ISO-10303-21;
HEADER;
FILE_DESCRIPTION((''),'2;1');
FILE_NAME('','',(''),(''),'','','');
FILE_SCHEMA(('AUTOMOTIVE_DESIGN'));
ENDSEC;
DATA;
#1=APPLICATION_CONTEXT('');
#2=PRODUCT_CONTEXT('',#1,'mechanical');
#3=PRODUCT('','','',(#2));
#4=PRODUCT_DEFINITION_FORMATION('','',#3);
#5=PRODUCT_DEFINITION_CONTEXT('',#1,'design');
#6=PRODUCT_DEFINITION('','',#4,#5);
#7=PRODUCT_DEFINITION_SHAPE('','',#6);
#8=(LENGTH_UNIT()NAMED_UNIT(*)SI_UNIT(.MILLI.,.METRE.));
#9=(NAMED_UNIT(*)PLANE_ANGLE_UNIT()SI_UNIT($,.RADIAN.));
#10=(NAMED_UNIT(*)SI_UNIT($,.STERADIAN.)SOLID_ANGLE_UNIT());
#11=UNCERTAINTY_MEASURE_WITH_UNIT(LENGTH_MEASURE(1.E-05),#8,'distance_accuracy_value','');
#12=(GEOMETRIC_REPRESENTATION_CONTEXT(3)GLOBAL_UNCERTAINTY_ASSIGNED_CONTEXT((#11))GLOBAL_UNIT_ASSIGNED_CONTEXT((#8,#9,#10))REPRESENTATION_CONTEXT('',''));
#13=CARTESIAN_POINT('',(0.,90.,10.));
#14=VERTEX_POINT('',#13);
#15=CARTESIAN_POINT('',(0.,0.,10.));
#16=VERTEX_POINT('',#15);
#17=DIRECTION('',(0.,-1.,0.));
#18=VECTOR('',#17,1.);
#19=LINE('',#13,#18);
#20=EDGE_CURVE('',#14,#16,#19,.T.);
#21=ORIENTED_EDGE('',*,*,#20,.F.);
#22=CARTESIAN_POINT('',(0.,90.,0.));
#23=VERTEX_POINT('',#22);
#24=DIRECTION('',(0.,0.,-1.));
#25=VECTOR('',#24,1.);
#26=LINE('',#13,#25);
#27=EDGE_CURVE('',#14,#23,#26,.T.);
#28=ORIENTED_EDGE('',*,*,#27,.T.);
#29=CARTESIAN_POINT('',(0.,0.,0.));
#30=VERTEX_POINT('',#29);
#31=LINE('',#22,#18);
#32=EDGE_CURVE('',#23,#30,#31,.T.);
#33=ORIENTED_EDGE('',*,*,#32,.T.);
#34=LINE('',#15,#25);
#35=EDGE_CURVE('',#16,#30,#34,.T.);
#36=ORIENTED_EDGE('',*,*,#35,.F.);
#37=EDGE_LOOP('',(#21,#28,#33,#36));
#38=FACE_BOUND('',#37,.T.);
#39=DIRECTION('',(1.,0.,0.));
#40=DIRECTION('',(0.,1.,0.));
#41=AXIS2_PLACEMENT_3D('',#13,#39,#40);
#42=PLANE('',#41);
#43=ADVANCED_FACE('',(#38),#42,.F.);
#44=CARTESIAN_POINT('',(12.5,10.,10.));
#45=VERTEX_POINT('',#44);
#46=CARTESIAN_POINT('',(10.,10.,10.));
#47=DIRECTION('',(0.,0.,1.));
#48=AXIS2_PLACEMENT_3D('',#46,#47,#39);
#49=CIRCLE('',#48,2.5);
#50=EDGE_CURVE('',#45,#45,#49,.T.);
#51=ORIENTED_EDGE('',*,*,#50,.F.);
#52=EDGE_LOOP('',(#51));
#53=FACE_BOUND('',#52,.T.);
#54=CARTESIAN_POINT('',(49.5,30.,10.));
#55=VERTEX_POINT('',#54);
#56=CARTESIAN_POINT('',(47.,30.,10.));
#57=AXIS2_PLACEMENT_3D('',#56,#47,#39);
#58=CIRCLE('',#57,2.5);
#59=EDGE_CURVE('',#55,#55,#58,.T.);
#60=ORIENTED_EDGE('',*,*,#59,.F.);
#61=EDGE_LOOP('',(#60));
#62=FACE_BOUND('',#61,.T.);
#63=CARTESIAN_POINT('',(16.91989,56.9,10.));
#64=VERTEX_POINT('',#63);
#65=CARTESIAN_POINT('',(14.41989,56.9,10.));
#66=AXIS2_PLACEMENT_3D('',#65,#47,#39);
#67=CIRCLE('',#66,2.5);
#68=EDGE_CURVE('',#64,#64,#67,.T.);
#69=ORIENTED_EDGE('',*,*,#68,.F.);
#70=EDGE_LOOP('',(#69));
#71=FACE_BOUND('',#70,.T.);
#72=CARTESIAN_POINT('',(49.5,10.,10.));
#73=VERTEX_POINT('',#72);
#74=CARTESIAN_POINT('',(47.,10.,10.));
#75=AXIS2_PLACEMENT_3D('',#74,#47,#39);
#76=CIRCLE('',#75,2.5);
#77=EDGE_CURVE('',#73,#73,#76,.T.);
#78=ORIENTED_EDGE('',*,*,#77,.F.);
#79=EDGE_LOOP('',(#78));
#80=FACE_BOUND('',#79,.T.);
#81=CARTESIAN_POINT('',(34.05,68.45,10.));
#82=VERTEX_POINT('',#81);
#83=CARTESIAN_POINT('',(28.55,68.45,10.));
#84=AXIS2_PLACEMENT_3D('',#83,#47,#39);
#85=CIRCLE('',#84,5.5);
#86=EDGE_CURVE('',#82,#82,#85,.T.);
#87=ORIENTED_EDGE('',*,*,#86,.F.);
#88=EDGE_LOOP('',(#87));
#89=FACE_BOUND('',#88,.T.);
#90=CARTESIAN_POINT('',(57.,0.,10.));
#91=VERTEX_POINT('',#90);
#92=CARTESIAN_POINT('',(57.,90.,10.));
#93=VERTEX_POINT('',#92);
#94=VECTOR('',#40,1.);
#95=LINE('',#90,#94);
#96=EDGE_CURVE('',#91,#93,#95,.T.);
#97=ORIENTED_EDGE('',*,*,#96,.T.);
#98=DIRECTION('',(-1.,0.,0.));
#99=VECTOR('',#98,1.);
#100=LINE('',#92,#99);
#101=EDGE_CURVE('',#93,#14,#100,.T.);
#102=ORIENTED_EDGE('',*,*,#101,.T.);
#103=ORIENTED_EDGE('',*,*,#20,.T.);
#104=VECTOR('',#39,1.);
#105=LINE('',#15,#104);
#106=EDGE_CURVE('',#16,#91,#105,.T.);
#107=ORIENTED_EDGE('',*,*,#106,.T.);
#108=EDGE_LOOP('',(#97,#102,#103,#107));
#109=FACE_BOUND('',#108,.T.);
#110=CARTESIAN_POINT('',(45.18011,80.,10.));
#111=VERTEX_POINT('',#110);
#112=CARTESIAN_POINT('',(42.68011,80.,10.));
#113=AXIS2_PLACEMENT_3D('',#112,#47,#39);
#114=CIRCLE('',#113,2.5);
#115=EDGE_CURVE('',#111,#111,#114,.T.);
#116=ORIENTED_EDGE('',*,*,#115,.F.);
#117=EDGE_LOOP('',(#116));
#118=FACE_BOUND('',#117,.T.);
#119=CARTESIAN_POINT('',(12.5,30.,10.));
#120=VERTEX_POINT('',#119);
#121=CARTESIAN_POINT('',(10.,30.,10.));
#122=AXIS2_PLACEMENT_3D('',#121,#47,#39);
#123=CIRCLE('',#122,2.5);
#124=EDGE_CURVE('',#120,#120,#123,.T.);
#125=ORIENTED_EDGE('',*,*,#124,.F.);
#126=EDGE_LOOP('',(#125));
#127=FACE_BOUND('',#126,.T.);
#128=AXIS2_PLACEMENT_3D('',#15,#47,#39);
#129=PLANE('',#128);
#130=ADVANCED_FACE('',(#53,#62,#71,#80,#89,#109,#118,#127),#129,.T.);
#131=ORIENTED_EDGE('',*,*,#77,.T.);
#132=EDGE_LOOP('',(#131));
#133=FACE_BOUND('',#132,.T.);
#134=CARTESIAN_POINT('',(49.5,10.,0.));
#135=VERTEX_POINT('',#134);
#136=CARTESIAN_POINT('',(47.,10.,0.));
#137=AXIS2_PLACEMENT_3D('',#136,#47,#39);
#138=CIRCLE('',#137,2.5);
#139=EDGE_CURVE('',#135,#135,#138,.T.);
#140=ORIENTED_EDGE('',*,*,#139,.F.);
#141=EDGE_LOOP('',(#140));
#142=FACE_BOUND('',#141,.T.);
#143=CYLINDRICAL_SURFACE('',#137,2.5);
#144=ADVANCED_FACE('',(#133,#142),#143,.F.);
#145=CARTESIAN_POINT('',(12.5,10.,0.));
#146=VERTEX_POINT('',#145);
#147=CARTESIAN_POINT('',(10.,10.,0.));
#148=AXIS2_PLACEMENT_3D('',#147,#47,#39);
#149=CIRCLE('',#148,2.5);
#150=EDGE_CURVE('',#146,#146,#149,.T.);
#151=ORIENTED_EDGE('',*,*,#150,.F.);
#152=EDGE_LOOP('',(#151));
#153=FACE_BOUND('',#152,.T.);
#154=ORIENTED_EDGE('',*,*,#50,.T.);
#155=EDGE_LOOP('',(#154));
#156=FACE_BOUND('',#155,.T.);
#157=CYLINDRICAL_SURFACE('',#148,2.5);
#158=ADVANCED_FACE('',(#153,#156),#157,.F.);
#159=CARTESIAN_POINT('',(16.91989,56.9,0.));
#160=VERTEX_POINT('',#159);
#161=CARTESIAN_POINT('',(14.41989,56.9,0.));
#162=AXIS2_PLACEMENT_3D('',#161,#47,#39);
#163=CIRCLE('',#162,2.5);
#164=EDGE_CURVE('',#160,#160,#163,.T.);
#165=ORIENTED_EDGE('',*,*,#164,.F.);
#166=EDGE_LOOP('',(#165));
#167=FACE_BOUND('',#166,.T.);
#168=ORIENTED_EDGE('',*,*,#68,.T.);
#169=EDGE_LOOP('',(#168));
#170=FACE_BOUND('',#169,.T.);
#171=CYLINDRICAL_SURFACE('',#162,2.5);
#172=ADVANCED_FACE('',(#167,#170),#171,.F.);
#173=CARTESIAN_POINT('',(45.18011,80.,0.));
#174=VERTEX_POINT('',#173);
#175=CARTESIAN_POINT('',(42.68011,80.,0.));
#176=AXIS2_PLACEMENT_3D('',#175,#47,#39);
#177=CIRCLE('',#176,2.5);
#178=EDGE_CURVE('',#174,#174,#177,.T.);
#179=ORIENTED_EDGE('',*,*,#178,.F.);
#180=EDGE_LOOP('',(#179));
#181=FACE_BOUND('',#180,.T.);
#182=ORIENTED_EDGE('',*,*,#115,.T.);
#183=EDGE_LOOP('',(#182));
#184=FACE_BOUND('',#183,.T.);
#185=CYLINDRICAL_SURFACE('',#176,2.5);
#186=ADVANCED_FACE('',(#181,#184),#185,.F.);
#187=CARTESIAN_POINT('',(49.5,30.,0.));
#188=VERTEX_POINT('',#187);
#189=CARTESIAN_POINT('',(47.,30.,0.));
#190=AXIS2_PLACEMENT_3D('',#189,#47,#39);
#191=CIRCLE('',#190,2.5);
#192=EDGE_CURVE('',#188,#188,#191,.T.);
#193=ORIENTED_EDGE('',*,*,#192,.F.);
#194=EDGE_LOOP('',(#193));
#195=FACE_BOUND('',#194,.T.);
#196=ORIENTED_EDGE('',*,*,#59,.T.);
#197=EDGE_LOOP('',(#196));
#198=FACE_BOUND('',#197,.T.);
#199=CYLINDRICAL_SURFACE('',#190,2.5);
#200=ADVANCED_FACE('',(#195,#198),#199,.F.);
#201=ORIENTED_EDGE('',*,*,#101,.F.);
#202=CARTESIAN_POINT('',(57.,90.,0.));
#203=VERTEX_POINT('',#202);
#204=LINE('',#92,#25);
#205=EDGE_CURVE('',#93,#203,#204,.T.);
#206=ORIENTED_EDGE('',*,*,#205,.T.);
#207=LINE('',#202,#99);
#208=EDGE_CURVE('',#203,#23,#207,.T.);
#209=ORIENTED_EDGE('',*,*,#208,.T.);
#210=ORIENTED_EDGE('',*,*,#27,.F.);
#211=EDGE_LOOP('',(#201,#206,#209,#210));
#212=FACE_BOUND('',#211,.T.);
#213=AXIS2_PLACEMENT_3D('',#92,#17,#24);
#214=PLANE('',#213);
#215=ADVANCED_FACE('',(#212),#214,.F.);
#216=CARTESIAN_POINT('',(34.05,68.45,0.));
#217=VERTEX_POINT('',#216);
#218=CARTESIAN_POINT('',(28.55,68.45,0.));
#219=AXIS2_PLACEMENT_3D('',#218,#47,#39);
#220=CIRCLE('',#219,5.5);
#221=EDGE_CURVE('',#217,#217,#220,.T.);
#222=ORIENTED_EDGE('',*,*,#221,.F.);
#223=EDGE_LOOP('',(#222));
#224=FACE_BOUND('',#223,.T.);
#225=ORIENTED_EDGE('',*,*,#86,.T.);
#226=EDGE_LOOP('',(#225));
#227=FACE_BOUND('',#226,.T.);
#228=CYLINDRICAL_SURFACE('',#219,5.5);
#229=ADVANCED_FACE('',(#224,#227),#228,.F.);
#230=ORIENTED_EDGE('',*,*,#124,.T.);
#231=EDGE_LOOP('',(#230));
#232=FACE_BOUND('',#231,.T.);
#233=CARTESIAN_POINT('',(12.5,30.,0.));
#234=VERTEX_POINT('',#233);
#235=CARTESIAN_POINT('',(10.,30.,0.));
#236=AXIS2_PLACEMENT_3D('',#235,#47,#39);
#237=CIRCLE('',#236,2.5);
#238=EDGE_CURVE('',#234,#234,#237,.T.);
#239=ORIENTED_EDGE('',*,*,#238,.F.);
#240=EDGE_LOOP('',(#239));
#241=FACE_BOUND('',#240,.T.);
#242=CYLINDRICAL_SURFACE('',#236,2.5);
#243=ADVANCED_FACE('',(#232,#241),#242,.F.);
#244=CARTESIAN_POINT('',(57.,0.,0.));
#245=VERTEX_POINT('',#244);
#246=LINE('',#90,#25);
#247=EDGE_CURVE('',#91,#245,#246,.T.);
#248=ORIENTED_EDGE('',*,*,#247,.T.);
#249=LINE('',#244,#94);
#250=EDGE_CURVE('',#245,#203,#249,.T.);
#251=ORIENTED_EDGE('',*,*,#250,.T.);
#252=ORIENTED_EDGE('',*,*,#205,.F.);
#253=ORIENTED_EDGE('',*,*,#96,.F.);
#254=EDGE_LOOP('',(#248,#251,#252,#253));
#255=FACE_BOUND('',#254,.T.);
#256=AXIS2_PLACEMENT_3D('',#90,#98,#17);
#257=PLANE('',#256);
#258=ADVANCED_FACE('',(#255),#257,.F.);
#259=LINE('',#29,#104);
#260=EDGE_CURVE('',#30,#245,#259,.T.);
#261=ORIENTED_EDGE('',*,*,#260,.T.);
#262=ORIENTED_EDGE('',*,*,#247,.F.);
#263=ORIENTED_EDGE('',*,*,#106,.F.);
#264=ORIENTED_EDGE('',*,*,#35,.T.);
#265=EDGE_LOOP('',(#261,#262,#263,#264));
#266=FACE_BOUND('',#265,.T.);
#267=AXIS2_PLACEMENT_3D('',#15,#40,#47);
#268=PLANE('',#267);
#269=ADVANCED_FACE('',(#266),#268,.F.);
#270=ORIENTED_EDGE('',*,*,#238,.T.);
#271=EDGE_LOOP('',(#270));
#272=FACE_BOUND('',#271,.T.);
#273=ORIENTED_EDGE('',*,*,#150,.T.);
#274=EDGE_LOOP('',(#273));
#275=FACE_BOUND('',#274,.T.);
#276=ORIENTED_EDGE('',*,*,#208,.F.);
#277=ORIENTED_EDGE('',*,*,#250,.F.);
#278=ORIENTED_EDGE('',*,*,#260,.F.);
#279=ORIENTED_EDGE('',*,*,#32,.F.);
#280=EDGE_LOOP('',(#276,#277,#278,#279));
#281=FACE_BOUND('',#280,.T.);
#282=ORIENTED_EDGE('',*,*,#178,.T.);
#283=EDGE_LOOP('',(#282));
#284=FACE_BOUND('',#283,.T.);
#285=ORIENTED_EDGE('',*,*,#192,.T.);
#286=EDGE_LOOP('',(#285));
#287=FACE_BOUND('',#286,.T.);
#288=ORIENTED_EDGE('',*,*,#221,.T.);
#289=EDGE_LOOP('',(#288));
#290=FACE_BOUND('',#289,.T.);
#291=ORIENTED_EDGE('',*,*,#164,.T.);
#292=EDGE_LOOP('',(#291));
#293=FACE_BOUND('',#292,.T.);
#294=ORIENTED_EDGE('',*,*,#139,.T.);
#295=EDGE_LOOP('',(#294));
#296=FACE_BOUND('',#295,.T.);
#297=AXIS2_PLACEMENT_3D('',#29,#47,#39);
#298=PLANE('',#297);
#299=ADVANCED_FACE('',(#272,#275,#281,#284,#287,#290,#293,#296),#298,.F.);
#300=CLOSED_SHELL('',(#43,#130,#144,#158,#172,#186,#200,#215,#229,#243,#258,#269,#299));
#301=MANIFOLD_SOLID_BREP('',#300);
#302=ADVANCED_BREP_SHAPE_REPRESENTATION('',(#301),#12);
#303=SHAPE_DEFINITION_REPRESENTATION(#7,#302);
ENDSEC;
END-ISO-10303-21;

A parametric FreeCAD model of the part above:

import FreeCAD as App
import Part
import Sketcher

V = App.Vector

doc = App.newDocument("Part")
params = doc.addObject("Spreadsheet::Sheet", "Params")
for row, (alias, value) in enumerate([
    ("sketch1_width", "57 mm"),
    ("sketch1_height", "90 mm"),
    ("pad1_length", "10 mm"),
    ("sketch2_diameter", "5 mm"),
    ("sketch2_diameter2", "11 mm"),
    ("pocket1_length", "10 mm"),
], start=1):
    params.set(f"A{row}", alias)
    params.set(f"B{row}", "=" + value)
    params.setAlias(f"B{row}", alias)

body = doc.addObject("PartDesign::Body", "Body")

# Sketch on XY plane
sketch1 = doc.addObject("Sketcher::SketchObject", "Sketch")
body.addObject(sketch1)
sketch1.AttachmentSupport = (doc.XY_Plane, [""])
sketch1.MapMode = "FlatFace"
sketch1.addGeometry([
    Part.LineSegment(V(0, 90, 0), V(0, 0, 0)),
    Part.LineSegment(V(0, 0, 0), V(57, 0, 0)),
    Part.LineSegment(V(57, 0, 0), V(57, 90, 0)),
    Part.LineSegment(V(57, 90, 0), V(0, 90, 0)),
], False)
sketch1.addConstraint([
    Sketcher.Constraint("Coincident", 0, 2, 1, 1),
    Sketcher.Constraint("Coincident", 1, 2, 2, 1),
    Sketcher.Constraint("Coincident", 2, 2, 3, 1),
    Sketcher.Constraint("Coincident", 3, 2, 0, 1),
    Sketcher.Constraint("Vertical", 0),
    Sketcher.Constraint("Horizontal", 1),
    Sketcher.Constraint("Vertical", 2),
    Sketcher.Constraint("Horizontal", 3),
    Sketcher.Constraint("Coincident", 0, 2, -1, 1),
    Sketcher.Constraint("DistanceX", 1, 1, 1, 2, 57.0),
    Sketcher.Constraint("DistanceY", 0, 2, 0, 1, 90.0),
])
sketch1.setExpression("Constraints[9]", "Params.sketch1_width")
sketch1.setExpression("Constraints[10]", "Params.sketch1_height")
pad1 = doc.addObject("PartDesign::Pad", "Pad")
body.addObject(pad1)
pad1.Profile = sketch1
pad1.setExpression("Length", "Params.pad1_length")

# Sketch on XY plane
sketch2 = doc.addObject("Sketcher::SketchObject", "Sketch001")
body.addObject(sketch2)
sketch2.AttachmentSupport = (doc.XY_Plane, [""])
sketch2.MapMode = "FlatFace"
sketch2.AttachmentOffset = App.Placement(V(0, 0, 10), App.Rotation())
sketch2.addGeometry([
    Part.Circle(V(47, 30, 0), V(0, 0, 1), 2.5),  # 0
    Part.Circle(V(47, 10, 0), V(0, 0, 1), 2.5),  # 1
    Part.Circle(V(10, 10, 0), V(0, 0, 1), 2.5),  # 2
    Part.Circle(V(10, 30, 0), V(0, 0, 1), 2.5),  # 3
    Part.Circle(V(28.6, 68.5, 0), V(0, 0, 1), 5.5),  # 4
    Part.Circle(V(14.4, 56.9, 0), V(0, 0, 1), 2.5),  # 5
    Part.Circle(V(42.7, 80, 0), V(0, 0, 1), 2.5),  # 6
], False)
sketch2.addConstraint([
    Sketcher.Constraint("Equal", 0, 1),
    Sketcher.Constraint("Equal", 1, 2),
    Sketcher.Constraint("Equal", 2, 3),
    Sketcher.Constraint("Equal", 3, 5),
    Sketcher.Constraint("Equal", 5, 6),
    Sketcher.Constraint("Horizontal", 1, 3, 2, 3),
    Sketcher.Constraint("Horizontal", 0, 3, 3, 3),
    Sketcher.Constraint("Vertical", 0, 3, 1, 3),
    Sketcher.Constraint("Vertical", 2, 3, 3, 3),
    Sketcher.Constraint("Diameter", 0, 5.0),
    Sketcher.Constraint("Diameter", 4, 11.0),
    Sketcher.Constraint("DistanceX", -1, 1, 0, 3, 47.0),
    Sketcher.Constraint("DistanceY", -1, 1, 0, 3, 30.0),
    Sketcher.Constraint("DistanceY", -1, 1, 1, 3, 10.0),
    Sketcher.Constraint("DistanceX", -1, 1, 2, 3, 10.0),
    Sketcher.Constraint("DistanceY", -1, 1, 6, 3, 80.0),
    Sketcher.Constraint("DistanceY", -1, 1, 5, 3, 56.9),
    Sketcher.Constraint("DistanceX", -1, 1, 4, 3, 28.55),
    Sketcher.Constraint("DistanceY", -1, 1, 4, 3, 68.45),
    Sketcher.Constraint("DistanceX", -1, 1, 5, 3, 14.41989),
    Sketcher.Constraint("DistanceX", -1, 1, 6, 3, 42.68011),
])
sketch2.setExpression("Constraints[9]", "Params.sketch2_diameter")
sketch2.setExpression("Constraints[10]", "Params.sketch2_diameter2")
pocket1 = doc.addObject("PartDesign::Pocket", "Pocket")
body.addObject(pocket1)
pocket1.Profile = sketch2
pocket1.setExpression("Length", "Params.pocket1_length")

doc.recompute()
